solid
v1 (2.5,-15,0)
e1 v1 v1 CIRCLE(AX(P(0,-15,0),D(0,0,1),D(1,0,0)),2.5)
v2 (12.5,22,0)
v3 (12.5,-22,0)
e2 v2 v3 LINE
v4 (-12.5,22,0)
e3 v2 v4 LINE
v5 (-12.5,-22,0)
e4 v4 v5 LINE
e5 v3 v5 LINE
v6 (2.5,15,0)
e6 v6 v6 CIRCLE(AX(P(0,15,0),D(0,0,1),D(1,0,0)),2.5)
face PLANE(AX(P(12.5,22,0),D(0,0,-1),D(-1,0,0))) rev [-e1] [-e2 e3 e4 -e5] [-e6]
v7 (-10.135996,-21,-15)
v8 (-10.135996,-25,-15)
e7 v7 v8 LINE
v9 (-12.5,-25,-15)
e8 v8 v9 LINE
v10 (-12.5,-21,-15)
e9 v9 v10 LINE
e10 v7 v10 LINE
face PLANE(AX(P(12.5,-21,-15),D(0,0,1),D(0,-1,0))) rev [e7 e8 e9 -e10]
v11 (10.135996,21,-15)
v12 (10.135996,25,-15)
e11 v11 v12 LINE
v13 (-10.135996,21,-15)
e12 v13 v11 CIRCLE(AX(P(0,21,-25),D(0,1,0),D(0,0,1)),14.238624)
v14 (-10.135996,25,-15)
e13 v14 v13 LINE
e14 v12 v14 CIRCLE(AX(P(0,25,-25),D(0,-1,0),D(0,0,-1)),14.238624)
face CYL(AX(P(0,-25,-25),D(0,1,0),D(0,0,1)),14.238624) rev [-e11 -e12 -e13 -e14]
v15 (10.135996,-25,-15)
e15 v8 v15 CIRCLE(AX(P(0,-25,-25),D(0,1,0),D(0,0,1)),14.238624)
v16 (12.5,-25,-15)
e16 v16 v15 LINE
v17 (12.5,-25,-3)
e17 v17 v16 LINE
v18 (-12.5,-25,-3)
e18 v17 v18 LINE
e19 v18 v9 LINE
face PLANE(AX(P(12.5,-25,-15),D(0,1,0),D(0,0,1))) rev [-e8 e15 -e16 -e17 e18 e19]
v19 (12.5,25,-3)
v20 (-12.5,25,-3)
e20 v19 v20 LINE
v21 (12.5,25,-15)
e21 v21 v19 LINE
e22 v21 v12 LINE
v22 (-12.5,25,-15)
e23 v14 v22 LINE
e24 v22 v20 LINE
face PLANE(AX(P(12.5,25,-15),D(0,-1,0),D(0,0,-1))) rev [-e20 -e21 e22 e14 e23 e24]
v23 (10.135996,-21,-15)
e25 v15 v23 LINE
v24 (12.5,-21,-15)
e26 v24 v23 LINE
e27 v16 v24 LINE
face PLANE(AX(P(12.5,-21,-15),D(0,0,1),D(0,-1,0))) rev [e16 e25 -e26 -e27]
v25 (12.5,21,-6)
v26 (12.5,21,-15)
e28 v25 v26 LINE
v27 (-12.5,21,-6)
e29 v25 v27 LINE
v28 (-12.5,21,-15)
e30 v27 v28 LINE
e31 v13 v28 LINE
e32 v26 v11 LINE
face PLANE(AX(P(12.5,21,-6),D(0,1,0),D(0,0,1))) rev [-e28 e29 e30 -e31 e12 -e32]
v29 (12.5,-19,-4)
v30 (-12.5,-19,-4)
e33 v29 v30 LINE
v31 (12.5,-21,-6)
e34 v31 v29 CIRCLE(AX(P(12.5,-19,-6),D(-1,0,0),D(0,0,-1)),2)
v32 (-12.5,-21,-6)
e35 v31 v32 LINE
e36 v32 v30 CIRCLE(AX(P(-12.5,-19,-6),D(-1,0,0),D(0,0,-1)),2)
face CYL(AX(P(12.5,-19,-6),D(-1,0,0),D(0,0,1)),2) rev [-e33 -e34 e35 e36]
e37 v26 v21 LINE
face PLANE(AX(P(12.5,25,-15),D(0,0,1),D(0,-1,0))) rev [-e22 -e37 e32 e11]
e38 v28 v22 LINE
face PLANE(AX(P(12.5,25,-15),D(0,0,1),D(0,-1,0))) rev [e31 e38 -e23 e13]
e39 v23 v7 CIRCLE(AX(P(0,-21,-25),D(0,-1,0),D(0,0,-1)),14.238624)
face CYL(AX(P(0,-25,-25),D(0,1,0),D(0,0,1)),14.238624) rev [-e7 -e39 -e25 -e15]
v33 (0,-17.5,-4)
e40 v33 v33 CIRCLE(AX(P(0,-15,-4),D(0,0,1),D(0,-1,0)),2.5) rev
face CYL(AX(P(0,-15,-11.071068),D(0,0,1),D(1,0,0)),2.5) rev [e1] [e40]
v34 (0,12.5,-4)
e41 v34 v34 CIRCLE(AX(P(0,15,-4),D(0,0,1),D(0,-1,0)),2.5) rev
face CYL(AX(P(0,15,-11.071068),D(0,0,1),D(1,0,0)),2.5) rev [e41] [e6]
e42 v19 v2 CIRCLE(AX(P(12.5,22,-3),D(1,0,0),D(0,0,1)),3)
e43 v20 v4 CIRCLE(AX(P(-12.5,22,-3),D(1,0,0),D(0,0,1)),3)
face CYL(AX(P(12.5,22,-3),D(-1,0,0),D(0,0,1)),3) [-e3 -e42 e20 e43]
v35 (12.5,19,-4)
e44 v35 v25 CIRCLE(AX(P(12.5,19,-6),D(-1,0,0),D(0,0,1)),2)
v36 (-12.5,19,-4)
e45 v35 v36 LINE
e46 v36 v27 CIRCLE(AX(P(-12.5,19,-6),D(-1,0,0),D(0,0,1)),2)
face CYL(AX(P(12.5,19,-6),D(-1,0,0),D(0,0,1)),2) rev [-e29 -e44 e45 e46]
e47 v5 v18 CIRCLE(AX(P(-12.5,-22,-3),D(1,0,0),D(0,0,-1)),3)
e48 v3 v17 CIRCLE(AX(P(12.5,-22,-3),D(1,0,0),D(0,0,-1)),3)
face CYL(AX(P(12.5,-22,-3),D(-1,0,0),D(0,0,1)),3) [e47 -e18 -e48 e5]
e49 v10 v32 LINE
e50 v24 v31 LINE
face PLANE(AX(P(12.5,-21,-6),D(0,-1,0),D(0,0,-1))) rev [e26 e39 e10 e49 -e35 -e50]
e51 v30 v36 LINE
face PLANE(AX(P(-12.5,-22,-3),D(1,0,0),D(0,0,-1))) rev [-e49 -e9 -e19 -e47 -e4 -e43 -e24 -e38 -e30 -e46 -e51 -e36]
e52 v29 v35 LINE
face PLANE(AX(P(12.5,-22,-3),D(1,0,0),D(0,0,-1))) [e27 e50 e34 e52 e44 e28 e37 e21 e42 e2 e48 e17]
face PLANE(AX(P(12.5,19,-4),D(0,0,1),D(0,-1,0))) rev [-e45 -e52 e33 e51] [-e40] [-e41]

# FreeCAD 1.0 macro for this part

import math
import FreeCAD as App
import Part
import Sketcher
Q = App.Units.Quantity

doc = App.newDocument("Part")
body = doc.addObject("PartDesign::Body", "Body")

# Sketch on YZ plane
sketch1 = doc.addObject("Sketcher::SketchObject", "Sketch")
body.addObject(sketch1)
sketch1.AttachmentSupport = (doc.YZ_Plane, [""])
sketch1.MapMode = "FlatFace"
sketch1.addGeometry(Part.LineSegment(App.Vector(22, 0, 0), App.Vector(-22, 0, 0)), False)
sketch1.addGeometry(Part.ArcOfCircle(Part.Circle(App.Vector(-22, -3, 0), App.Vector(0, 0, 1), 3), math.radians(90), math.radians(180)), False)
sketch1.addGeometry(Part.LineSegment(App.Vector(-25, -3, 0), App.Vector(-25, -15, 0)), False)
sketch1.addGeometry(Part.LineSegment(App.Vector(-25, -15, 0), App.Vector(-21, -15, 0)), False)
sketch1.addGeometry(Part.LineSegment(App.Vector(-21, -15, 0), App.Vector(-21, -6, 0)), False)
sketch1.addGeometry(Part.ArcOfCircle(Part.Circle(App.Vector(-19, -6, 0), App.Vector(0, 0, 1), 2), math.radians(90), math.radians(180)), False)
sketch1.addGeometry(Part.LineSegment(App.Vector(-19, -4, 0), App.Vector(19, -4, 0)), False)
sketch1.addGeometry(Part.ArcOfCircle(Part.Circle(App.Vector(19, -6, 0), App.Vector(0, 0, 1), 2), math.radians(0), math.radians(90)), False)
sketch1.addGeometry(Part.LineSegment(App.Vector(21, -6, 0), App.Vector(21, -15, 0)), False)
sketch1.addGeometry(Part.LineSegment(App.Vector(21, -15, 0), App.Vector(25, -15, 0)), False)
sketch1.addGeometry(Part.LineSegment(App.Vector(25, -15, 0), App.Vector(25, -3, 0)), False)
sketch1.addGeometry(Part.ArcOfCircle(Part.Circle(App.Vector(22, -3, 0), App.Vector(0, 0, 1), 3), math.radians(0), math.radians(90)), False)
sketch1.addConstraint(Sketcher.Constraint("Tangent", 0, 2, 1, 1))
sketch1.addConstraint(Sketcher.Constraint("Tangent", 1, 2, 2, 1))
sketch1.addConstraint(Sketcher.Constraint("Coincident", 2, 2, 3, 1))
sketch1.addConstraint(Sketcher.Constraint("Coincident", 3, 2, 4, 1))
sketch1.addConstraint(Sketcher.Constraint("Tangent", 4, 2, 5, 2))
sketch1.addConstraint(Sketcher.Constraint("Tangent", 5, 1, 6, 1))
sketch1.addConstraint(Sketcher.Constraint("Tangent", 6, 2, 7, 2))
sketch1.addConstraint(Sketcher.Constraint("Tangent", 7, 1, 8, 1))
sketch1.addConstraint(Sketcher.Constraint("Coincident", 8, 2, 9, 1))
sketch1.addConstraint(Sketcher.Constraint("Coincident", 9, 2, 10, 1))
sketch1.addConstraint(Sketcher.Constraint("Tangent", 10, 2, 11, 1))
sketch1.addConstraint(Sketcher.Constraint("Tangent", 11, 2, 0, 1))
sketch1.addConstraint(Sketcher.Constraint("Horizontal", 0))
sketch1.addConstraint(Sketcher.Constraint("Vertical", 2))
sketch1.addConstraint(Sketcher.Constraint("Horizontal", 3))
sketch1.addConstraint(Sketcher.Constraint("Vertical", 4))
sketch1.addConstraint(Sketcher.Constraint("Horizontal", 6))
sketch1.addConstraint(Sketcher.Constraint("Vertical", 8))
sketch1.addConstraint(Sketcher.Constraint("Horizontal", 9))
sketch1.addConstraint(Sketcher.Constraint("Vertical", 10))
sketch1.addConstraint(Sketcher.Constraint("Equal", 5, 7))
sketch1.addConstraint(Sketcher.Constraint("Equal", 1, 11))
sketch1.addConstraint(Sketcher.Constraint("Symmetric", 0, 2, 11, 2, -1, 1))
sketch1.addConstraint(Sketcher.Constraint("Symmetric", 3, 2, 8, 2, -2))
sketch1.addConstraint(Sketcher.Constraint("Radius", 1, Q("3 mm")))
sketch1.addConstraint(Sketcher.Constraint("Radius", 5, Q("2 mm")))
sketch1.addConstraint(Sketcher.Constraint("DistanceX", 0, 2, 0, 1, Q("44 mm")))
sketch1.addConstraint(Sketcher.Constraint("DistanceX", 3, 1, 3, 2, Q("4 mm")))
sketch1.addConstraint(Sketcher.Constraint("DistanceY", 2, 2, 2, 1, Q("12 mm")))
sketch1.addConstraint(Sketcher.Constraint("DistanceY", 4, 1, 4, 2, Q("9 mm")))
pad1 = doc.addObject("PartDesign::Pad", "Pad")
body.addObject(pad1)
pad1.Profile = sketch1
pad1.Length = 25
pad1.Midplane = True

# Sketch on XY plane
sketch2 = doc.addObject("Sketcher::SketchObject", "Sketch001")
body.addObject(sketch2)
sketch2.AttachmentSupport = (doc.XY_Plane, [""])
sketch2.MapMode = "FlatFace"
sketch2.addGeometry(Part.Circle(App.Vector(0, 15, 0), App.Vector(0, 0, 1), 2.5), False)
sketch2.addGeometry(Part.Circle(App.Vector(0, -15, 0), App.Vector(0, 0, 1), 2.5), False)
sketch2.addConstraint(Sketcher.Constraint("Equal", 0, 1))
sketch2.addConstraint(Sketcher.Constraint("Symmetric", 0, 3, 1, 3, -1, 1))
sketch2.addConstraint(Sketcher.Constraint("PointOnObject", 0, 3, -2))
sketch2.addConstraint(Sketcher.Constraint("Diameter", 0, Q("5 mm")))
sketch2.addConstraint(Sketcher.Constraint("DistanceY", -1, 1, 0, 3, Q("15 mm")))
pocket1 = doc.addObject("PartDesign::Pocket", "Pocket")
body.addObject(pocket1)
pocket1.Profile = sketch2
pocket1.Length = 4

# Sketch on XZ plane
sketch3 = doc.addObject("Sketcher::SketchObject", "Sketch002")
body.addObject(sketch3)
sketch3.AttachmentSupport = (doc.XZ_Plane, [""])
sketch3.MapMode = "FlatFace"
sketch3.addGeometry(Part.Circle(App.Vector(0, -25, 0), App.Vector(0, 0, 1), 14), False)
sketch3.addConstraint(Sketcher.Constraint("PointOnObject", 0, 3, -2))
sketch3.addConstraint(Sketcher.Constraint("DistanceY", 0, 3, -1, 1, Q("25 mm")))
sketch3.addConstraint(Sketcher.Constraint("Diameter", 0, Q("28.477248 mm")))
pocket2 = doc.addObject("PartDesign::Pocket", "Pocket001")
body.addObject(pocket2)
pocket2.Profile = sketch3
pocket2.Type = "ThroughAll"
pocket2.Midplane = True

doc.recompute()
